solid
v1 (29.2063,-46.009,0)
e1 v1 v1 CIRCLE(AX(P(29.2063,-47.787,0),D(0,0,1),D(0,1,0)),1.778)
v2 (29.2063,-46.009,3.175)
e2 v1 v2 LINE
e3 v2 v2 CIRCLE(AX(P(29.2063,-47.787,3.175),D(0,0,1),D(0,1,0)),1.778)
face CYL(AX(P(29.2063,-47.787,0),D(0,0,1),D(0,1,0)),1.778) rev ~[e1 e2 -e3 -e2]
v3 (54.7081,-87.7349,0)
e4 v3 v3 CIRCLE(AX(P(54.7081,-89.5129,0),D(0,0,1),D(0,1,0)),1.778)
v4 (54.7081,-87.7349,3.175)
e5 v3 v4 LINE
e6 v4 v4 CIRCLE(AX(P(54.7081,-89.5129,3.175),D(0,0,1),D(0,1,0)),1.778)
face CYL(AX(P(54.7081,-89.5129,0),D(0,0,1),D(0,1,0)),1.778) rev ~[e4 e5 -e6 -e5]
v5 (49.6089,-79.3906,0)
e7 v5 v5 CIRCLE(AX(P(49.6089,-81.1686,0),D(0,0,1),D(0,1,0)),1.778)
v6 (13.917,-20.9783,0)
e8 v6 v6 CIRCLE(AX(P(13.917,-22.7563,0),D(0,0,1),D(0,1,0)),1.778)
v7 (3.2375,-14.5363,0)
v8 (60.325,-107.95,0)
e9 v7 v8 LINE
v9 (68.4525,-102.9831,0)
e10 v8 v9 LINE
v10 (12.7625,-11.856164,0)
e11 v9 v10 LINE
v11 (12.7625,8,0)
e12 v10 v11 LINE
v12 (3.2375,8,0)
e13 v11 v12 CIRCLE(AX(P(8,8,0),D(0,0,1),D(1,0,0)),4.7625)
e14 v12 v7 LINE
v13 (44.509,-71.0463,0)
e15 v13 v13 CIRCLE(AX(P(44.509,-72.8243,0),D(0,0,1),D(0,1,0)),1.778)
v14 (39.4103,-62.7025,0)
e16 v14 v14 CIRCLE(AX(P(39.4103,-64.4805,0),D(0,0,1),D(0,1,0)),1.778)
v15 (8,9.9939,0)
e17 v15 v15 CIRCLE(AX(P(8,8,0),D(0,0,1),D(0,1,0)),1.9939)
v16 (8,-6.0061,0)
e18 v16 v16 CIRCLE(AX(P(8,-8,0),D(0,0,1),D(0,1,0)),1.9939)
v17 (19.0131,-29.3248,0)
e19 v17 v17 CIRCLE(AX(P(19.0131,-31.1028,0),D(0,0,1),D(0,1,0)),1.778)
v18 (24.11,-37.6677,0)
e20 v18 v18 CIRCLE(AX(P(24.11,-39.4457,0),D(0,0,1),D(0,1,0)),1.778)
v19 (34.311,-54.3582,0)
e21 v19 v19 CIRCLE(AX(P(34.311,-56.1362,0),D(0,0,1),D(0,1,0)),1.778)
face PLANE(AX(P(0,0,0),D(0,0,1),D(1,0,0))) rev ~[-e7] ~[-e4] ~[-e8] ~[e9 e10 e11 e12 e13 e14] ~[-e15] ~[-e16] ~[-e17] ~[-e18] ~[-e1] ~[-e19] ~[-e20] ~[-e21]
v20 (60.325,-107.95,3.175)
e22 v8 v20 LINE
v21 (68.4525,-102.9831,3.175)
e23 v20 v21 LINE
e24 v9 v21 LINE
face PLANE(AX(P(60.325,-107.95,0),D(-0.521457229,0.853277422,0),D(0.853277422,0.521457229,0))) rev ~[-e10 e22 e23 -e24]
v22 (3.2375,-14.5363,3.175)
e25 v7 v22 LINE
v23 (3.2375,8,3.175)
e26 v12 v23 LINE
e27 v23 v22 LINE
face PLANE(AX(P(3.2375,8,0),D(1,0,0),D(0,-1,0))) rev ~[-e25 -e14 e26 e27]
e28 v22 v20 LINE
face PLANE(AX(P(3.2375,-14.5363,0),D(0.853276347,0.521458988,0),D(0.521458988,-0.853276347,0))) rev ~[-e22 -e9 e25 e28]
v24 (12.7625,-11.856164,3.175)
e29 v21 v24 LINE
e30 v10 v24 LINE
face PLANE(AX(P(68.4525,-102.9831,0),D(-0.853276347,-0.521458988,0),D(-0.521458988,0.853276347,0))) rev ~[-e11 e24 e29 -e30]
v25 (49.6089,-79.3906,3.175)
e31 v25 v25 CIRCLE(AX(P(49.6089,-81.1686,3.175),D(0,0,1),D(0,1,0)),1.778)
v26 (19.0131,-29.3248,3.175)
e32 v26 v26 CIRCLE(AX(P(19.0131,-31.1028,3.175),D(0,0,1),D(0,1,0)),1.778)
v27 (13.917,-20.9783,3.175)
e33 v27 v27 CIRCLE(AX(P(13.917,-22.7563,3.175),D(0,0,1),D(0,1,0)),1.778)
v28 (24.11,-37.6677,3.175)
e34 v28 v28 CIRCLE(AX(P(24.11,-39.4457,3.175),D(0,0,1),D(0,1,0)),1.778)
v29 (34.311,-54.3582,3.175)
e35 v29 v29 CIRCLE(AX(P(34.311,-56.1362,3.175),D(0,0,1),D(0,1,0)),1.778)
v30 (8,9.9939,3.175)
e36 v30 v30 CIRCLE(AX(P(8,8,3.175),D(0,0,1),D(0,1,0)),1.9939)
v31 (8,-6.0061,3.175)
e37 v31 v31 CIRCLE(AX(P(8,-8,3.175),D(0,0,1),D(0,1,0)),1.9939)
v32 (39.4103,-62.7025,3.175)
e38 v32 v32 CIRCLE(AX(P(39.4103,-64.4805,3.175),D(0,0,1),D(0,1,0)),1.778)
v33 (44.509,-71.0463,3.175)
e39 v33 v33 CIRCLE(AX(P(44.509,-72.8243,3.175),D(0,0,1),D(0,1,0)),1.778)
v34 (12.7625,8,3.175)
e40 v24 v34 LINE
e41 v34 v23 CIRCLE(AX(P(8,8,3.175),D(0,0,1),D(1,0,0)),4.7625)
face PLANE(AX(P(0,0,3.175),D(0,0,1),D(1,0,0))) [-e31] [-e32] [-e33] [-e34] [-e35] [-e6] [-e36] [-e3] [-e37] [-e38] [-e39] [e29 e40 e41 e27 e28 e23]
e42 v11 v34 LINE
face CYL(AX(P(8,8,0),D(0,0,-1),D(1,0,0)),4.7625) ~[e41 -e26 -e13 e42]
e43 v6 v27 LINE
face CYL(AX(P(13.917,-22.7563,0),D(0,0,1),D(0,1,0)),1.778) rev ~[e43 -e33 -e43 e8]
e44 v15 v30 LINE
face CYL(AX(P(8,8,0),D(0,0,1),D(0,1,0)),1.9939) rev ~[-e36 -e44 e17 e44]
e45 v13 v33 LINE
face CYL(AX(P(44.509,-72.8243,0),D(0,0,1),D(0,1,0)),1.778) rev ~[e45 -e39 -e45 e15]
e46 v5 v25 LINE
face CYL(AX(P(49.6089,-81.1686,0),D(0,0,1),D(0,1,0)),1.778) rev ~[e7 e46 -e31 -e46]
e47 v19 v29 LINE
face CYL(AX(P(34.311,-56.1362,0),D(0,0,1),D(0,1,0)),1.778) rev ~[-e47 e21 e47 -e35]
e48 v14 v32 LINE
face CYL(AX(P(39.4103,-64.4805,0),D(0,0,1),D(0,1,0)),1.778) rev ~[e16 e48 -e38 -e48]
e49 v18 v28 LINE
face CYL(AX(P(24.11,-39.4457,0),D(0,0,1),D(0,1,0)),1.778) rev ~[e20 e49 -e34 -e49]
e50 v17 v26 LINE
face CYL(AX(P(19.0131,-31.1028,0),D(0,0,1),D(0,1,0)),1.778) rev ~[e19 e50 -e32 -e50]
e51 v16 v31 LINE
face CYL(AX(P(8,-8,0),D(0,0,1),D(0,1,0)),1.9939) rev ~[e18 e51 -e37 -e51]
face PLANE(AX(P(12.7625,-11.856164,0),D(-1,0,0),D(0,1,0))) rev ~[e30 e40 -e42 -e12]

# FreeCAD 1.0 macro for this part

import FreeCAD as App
import Part
import Sketcher
Q = App.Units.Quantity


def add_polygon(sketch, points):
    """Adds a closed chain of lines whose ends are joined by coincident constraints."""
    first, n = sketch.GeometryCount, len(points)
    for a, b in zip(points, points[1:] + points[:1]):
        sketch.addGeometry(Part.LineSegment(App.Vector(*a, 0), App.Vector(*b, 0)), False)
    for i in range(n):
        sketch.addConstraint(Sketcher.Constraint("Coincident", first + i, 2, first + (i + 1) % n, 1))

doc = App.newDocument("Part")
body = doc.addObject("PartDesign::Body", "Body")

sketch1 = body.newObject("Sketcher::SketchObject", "Sketch")
sketch1.AttachmentSupport = (doc.getObject("XY_Plane"), [""])
sketch1.MapMode = "FlatFace"
sketch1.addGeometry(Part.Circle(App.Vector(8, 8, 0), App.Vector(0, 0, 1), 4.8), False)
sketch1.addConstraint([
    Sketcher.Constraint("Diameter", 0, Q("0.375 in")),
    Sketcher.Constraint("DistanceX", -1, 1, 0, 3, 8.0),
    Sketcher.Constraint("DistanceY", -1, 1, 0, 3, 8.0),
])
pad1 = body.newObject("PartDesign::Pad", "Pad")
pad1.Profile = sketch1
pad1.Length = Q("0.125 in")

sketch2 = body.newObject("Sketcher::SketchObject", "Sketch001")
sketch2.AttachmentSupport = (doc.getObject("XY_Plane"), [""])
sketch2.MapMode = "FlatFace"
add_polygon(sketch2, [(13, -12), (13, 8), (3, 8), (3, -15), (60, -108), (68, -103)])
sketch2.addConstraint([
    Sketcher.Constraint("Vertical", 0),
    Sketcher.Constraint("Horizontal", 1),
    Sketcher.Constraint("Vertical", 2),
    Sketcher.Constraint("Perpendicular", 3, 4),
    Sketcher.Constraint("Perpendicular", 4, 5),
    Sketcher.Constraint("DistanceX", 1, 2, 1, 1, Q("0.375 in")),
    Sketcher.Constraint("Distance", 4, Q("0.375 in")),
    Sketcher.Constraint("DistanceY", 3, 2, -1, 1, Q("4.25 in")),
    Sketcher.Constraint("Angle", 3, Q("-58.5698 deg")),
    Sketcher.Constraint("DistanceX", -1, 1, 3, 2, Q("2.375 in")),
    Sketcher.Constraint("Distance", 3, Q("4.3101 in")),
    Sketcher.Constraint("DistanceY", 0, 1, 0, 2, 19.8562),
])
pad2 = body.newObject("PartDesign::Pad", "Pad001")
pad2.Profile = sketch2
pad2.Length = Q("0.125 in")

sketch3 = body.newObject("Sketcher::SketchObject", "Sketch002")
sketch3.AttachmentSupport = (doc.getObject("XY_Plane"), [""])
sketch3.MapMode = "FlatFace"
sketch3.addGeometry(Part.Circle(App.Vector(34.3, -56.1, 0), App.Vector(0, 0, 1), 1.8), False)
sketch3.addConstraint([
    Sketcher.Constraint("Diameter", 0, Q("0.14 in")),
    Sketcher.Constraint("DistanceX", -1, 1, 0, 3, 34.311),
    Sketcher.Constraint("DistanceY", 0, 3, -1, 1, 56.1362),
])
doc.recompute()
hole = body.newObject("PartDesign::Hole", "Hole")
hole.Profile = sketch3
hole.ThreadType = "None"
hole.Diameter = Q("0.14 in")
hole.DepthType = "ThroughAll"
hole.Reversed = True

sketch4 = body.newObject("Sketcher::SketchObject", "Sketch003")
sketch4.AttachmentSupport = (doc.getObject("XY_Plane"), [""])
sketch4.MapMode = "FlatFace"
sketch4.addGeometry(Part.Circle(App.Vector(49.6, -81.2, 0), App.Vector(0, 0, 1), 1.8), False)
sketch4.addConstraint([
    Sketcher.Constraint("Diameter", 0, Q("0.14 in")),
    Sketcher.Constraint("DistanceX", -1, 1, 0, 3, Q("1.9531 in")),
    Sketcher.Constraint("DistanceY", 0, 3, -1, 1, 81.1686),
])
doc.recompute()
hole2 = body.newObject("PartDesign::Hole", "Hole001")
hole2.Profile = sketch4
hole2.ThreadType = "None"
hole2.Diameter = Q("0.14 in")
hole2.DepthType = "ThroughAll"
hole2.Reversed = True

sketch5 = body.newObject("Sketcher::SketchObject", "Sketch004")
sketch5.AttachmentSupport = (doc.getObject("XY_Plane"), [""])
sketch5.MapMode = "FlatFace"
sketch5.addGeometry(Part.Circle(App.Vector(44.5, -72.8, 0), App.Vector(0, 0, 1), 1.8), False)
sketch5.addConstraint([
    Sketcher.Constraint("Diameter", 0, Q("0.14 in")),
    Sketcher.Constraint("DistanceY", 0, 3, -1, 1, Q("2.8671 in")),
    Sketcher.Constraint("DistanceX", -1, 1, 0, 3, 44.509),
])
doc.recompute()
hole3 = body.newObject("PartDesign::Hole", "Hole002")
hole3.Profile = sketch5
hole3.ThreadType = "None"
hole3.Diameter = Q("0.14 in")
hole3.DepthType = "ThroughAll"
hole3.Reversed = True

sketch6 = body.newObject("Sketcher::SketchObject", "Sketch005")
sketch6.AttachmentSupport = (doc.getObject("XY_Plane"), [""])
sketch6.MapMode = "FlatFace"
sketch6.addGeometry(Part.Circle(App.Vector(54.7, -89.5, 0), App.Vector(0, 0, 1), 1.8), False)
sketch6.addConstraint([
    Sketcher.Constraint("Diameter", 0, Q("0.14 in")),
    Sketcher.Constraint("DistanceX", -1, 1, 0, 3, 54.708),
    Sketcher.Constraint("DistanceY", 0, 3, -1, 1, 89.513),
])
doc.recompute()
hole4 = body.newObject("PartDesign::Hole", "Hole003")
hole4.Profile = sketch6
hole4.ThreadType = "None"
hole4.Diameter = Q("0.14 in")
hole4.DepthType = "ThroughAll"
hole4.Reversed = True

sketch7 = body.newObject("Sketcher::SketchObject", "Sketch006")
sketch7.AttachmentSupport = (doc.getObject("XY_Plane"), [""])
sketch7.MapMode = "FlatFace"
sketch7.addGeometry(Part.Circle(App.Vector(39.4, -64.5, 0), App.Vector(0, 0, 1), 1.8), False)
sketch7.addConstraint([
    Sketcher.Constraint("Diameter", 0, Q("0.14 in")),
    Sketcher.Constraint("DistanceY", 0, 3, -1, 1, Q("2.5386 in")),
    Sketcher.Constraint("DistanceX", -1, 1, 0, 3, 39.4103),
])
doc.recompute()
hole5 = body.newObject("PartDesign::Hole", "Hole004")
hole5.Profile = sketch7
hole5.ThreadType = "None"
hole5.Diameter = Q("0.14 in")
hole5.DepthType = "ThroughAll"
hole5.Reversed = True

sketch8 = body.newObject("Sketcher::SketchObject", "Sketch007")
sketch8.AttachmentSupport = (doc.getObject("XY_Plane"), [""])
sketch8.MapMode = "FlatFace"
sketch8.addGeometry(Part.Circle(App.Vector(29.2, -47.8, 0), App.Vector(0, 0, 1), 1.8), False)
sketch8.addConstraint([
    Sketcher.Constraint("Diameter", 0, Q("0.14 in")),
    Sketcher.Constraint("DistanceX", -1, 1, 0, 3, 29.2063),
    Sketcher.Constraint("DistanceY", 0, 3, -1, 1, 47.787),
])
doc.recompute()
hole6 = body.newObject("PartDesign::Hole", "Hole005")
hole6.Profile = sketch8
hole6.ThreadType = "None"
hole6.Diameter = Q("0.14 in")
hole6.DepthType = "ThroughAll"
hole6.Reversed = True

sketch9 = body.newObject("Sketcher::SketchObject", "Sketch008")
sketch9.AttachmentSupport = (doc.getObject("XY_Plane"), [""])
sketch9.MapMode = "FlatFace"
sketch9.addGeometry(Part.Circle(App.Vector(24.1, -39.4, 0), App.Vector(0, 0, 1), 1.8), False)
sketch9.addConstraint([
    Sketcher.Constraint("Diameter", 0, Q("0.14 in")),
    Sketcher.Constraint("DistanceX", -1, 1, 0, 3, 24.11),
    Sketcher.Constraint("DistanceY", 0, 3, -1, 1, 39.4457),
])
doc.recompute()
hole7 = body.newObject("PartDesign::Hole", "Hole006")
hole7.Profile = sketch9
hole7.ThreadType = "None"
hole7.Diameter = Q("0.14 in")
hole7.DepthType = "ThroughAll"
hole7.Reversed = True

sketch10 = body.newObject("Sketcher::SketchObject", "Sketch009")
sketch10.AttachmentSupport = (doc.getObject("XY_Plane"), [""])
sketch10.MapMode = "FlatFace"
sketch10.addGeometry(Part.Circle(App.Vector(19, -31.1, 0), App.Vector(0, 0, 1), 1.8), False)
sketch10.addConstraint([
    Sketcher.Constraint("Diameter", 0, Q("0.14 in")),
    Sketcher.Constraint("DistanceX", -1, 1, 0, 3, 19.013),
    Sketcher.Constraint("DistanceY", 0, 3, -1, 1, 31.1028),
])
doc.recompute()
hole8 = body.newObject("PartDesign::Hole", "Hole007")
hole8.Profile = sketch10
hole8.ThreadType = "None"
hole8.Diameter = Q("0.14 in")
hole8.DepthType = "ThroughAll"
hole8.Reversed = True

sketch11 = body.newObject("Sketcher::SketchObject", "Sketch010")
sketch11.AttachmentSupport = (doc.getObject("XY_Plane"), [""])
sketch11.MapMode = "FlatFace"
sketch11.addGeometry(Part.Circle(App.Vector(13.9, -22.8, 0), App.Vector(0, 0, 1), 1.8), False)
sketch11.addConstraint([
    Sketcher.Constraint("Diameter", 0, Q("0.14 in")),
    Sketcher.Constraint("DistanceX", -1, 1, 0, 3, 13.917),
    Sketcher.Constraint("DistanceY", 0, 3, -1, 1, 22.7563),
])
doc.recompute()
hole9 = body.newObject("PartDesign::Hole", "Hole008")
hole9.Profile = sketch11
hole9.ThreadType = "None"
hole9.Diameter = Q("0.14 in")
hole9.DepthType = "ThroughAll"
hole9.Reversed = True

sketch12 = body.newObject("Sketcher::SketchObject", "Sketch011")
sketch12.AttachmentSupport = (doc.getObject("XY_Plane"), [""])
sketch12.MapMode = "FlatFace"
sketch12.addGeometry(Part.Circle(App.Vector(8, -8, 0), App.Vector(0, 0, 1), 2), False)
sketch12.addConstraint([
    Sketcher.Constraint("Diameter", 0, Q("0.157 in")),
    Sketcher.Constraint("DistanceX", -1, 1, 0, 3, 8.0),
    Sketcher.Constraint("DistanceY", 0, 3, -1, 1, 8.0),
])
doc.recompute()
hole10 = body.newObject("PartDesign::Hole", "Hole009")
hole10.Profile = sketch12
hole10.ThreadType = "None"
hole10.Diameter = Q("0.157 in")
hole10.DepthType = "ThroughAll"
hole10.Reversed = True

sketch13 = body.newObject("Sketcher::SketchObject", "Sketch012")
sketch13.AttachmentSupport = (doc.getObject("XY_Plane"), [""])
sketch13.MapMode = "FlatFace"
sketch13.addGeometry(Part.Circle(App.Vector(8, 8, 0), App.Vector(0, 0, 1), 2), False)
sketch13.addConstraint([
    Sketcher.Constraint("Diameter", 0, Q("0.157 in")),
    Sketcher.Constraint("DistanceX", -1, 1, 0, 3, 8.0),
    Sketcher.Constraint("DistanceY", -1, 1, 0, 3, 8.0),
])
doc.recompute()
hole11 = body.newObject("PartDesign::Hole", "Hole010")
hole11.Profile = sketch13
hole11.ThreadType = "None"
hole11.Diameter = Q("0.157 in")
hole11.DepthType = "ThroughAll"
hole11.Reversed = True

doc.recompute()
